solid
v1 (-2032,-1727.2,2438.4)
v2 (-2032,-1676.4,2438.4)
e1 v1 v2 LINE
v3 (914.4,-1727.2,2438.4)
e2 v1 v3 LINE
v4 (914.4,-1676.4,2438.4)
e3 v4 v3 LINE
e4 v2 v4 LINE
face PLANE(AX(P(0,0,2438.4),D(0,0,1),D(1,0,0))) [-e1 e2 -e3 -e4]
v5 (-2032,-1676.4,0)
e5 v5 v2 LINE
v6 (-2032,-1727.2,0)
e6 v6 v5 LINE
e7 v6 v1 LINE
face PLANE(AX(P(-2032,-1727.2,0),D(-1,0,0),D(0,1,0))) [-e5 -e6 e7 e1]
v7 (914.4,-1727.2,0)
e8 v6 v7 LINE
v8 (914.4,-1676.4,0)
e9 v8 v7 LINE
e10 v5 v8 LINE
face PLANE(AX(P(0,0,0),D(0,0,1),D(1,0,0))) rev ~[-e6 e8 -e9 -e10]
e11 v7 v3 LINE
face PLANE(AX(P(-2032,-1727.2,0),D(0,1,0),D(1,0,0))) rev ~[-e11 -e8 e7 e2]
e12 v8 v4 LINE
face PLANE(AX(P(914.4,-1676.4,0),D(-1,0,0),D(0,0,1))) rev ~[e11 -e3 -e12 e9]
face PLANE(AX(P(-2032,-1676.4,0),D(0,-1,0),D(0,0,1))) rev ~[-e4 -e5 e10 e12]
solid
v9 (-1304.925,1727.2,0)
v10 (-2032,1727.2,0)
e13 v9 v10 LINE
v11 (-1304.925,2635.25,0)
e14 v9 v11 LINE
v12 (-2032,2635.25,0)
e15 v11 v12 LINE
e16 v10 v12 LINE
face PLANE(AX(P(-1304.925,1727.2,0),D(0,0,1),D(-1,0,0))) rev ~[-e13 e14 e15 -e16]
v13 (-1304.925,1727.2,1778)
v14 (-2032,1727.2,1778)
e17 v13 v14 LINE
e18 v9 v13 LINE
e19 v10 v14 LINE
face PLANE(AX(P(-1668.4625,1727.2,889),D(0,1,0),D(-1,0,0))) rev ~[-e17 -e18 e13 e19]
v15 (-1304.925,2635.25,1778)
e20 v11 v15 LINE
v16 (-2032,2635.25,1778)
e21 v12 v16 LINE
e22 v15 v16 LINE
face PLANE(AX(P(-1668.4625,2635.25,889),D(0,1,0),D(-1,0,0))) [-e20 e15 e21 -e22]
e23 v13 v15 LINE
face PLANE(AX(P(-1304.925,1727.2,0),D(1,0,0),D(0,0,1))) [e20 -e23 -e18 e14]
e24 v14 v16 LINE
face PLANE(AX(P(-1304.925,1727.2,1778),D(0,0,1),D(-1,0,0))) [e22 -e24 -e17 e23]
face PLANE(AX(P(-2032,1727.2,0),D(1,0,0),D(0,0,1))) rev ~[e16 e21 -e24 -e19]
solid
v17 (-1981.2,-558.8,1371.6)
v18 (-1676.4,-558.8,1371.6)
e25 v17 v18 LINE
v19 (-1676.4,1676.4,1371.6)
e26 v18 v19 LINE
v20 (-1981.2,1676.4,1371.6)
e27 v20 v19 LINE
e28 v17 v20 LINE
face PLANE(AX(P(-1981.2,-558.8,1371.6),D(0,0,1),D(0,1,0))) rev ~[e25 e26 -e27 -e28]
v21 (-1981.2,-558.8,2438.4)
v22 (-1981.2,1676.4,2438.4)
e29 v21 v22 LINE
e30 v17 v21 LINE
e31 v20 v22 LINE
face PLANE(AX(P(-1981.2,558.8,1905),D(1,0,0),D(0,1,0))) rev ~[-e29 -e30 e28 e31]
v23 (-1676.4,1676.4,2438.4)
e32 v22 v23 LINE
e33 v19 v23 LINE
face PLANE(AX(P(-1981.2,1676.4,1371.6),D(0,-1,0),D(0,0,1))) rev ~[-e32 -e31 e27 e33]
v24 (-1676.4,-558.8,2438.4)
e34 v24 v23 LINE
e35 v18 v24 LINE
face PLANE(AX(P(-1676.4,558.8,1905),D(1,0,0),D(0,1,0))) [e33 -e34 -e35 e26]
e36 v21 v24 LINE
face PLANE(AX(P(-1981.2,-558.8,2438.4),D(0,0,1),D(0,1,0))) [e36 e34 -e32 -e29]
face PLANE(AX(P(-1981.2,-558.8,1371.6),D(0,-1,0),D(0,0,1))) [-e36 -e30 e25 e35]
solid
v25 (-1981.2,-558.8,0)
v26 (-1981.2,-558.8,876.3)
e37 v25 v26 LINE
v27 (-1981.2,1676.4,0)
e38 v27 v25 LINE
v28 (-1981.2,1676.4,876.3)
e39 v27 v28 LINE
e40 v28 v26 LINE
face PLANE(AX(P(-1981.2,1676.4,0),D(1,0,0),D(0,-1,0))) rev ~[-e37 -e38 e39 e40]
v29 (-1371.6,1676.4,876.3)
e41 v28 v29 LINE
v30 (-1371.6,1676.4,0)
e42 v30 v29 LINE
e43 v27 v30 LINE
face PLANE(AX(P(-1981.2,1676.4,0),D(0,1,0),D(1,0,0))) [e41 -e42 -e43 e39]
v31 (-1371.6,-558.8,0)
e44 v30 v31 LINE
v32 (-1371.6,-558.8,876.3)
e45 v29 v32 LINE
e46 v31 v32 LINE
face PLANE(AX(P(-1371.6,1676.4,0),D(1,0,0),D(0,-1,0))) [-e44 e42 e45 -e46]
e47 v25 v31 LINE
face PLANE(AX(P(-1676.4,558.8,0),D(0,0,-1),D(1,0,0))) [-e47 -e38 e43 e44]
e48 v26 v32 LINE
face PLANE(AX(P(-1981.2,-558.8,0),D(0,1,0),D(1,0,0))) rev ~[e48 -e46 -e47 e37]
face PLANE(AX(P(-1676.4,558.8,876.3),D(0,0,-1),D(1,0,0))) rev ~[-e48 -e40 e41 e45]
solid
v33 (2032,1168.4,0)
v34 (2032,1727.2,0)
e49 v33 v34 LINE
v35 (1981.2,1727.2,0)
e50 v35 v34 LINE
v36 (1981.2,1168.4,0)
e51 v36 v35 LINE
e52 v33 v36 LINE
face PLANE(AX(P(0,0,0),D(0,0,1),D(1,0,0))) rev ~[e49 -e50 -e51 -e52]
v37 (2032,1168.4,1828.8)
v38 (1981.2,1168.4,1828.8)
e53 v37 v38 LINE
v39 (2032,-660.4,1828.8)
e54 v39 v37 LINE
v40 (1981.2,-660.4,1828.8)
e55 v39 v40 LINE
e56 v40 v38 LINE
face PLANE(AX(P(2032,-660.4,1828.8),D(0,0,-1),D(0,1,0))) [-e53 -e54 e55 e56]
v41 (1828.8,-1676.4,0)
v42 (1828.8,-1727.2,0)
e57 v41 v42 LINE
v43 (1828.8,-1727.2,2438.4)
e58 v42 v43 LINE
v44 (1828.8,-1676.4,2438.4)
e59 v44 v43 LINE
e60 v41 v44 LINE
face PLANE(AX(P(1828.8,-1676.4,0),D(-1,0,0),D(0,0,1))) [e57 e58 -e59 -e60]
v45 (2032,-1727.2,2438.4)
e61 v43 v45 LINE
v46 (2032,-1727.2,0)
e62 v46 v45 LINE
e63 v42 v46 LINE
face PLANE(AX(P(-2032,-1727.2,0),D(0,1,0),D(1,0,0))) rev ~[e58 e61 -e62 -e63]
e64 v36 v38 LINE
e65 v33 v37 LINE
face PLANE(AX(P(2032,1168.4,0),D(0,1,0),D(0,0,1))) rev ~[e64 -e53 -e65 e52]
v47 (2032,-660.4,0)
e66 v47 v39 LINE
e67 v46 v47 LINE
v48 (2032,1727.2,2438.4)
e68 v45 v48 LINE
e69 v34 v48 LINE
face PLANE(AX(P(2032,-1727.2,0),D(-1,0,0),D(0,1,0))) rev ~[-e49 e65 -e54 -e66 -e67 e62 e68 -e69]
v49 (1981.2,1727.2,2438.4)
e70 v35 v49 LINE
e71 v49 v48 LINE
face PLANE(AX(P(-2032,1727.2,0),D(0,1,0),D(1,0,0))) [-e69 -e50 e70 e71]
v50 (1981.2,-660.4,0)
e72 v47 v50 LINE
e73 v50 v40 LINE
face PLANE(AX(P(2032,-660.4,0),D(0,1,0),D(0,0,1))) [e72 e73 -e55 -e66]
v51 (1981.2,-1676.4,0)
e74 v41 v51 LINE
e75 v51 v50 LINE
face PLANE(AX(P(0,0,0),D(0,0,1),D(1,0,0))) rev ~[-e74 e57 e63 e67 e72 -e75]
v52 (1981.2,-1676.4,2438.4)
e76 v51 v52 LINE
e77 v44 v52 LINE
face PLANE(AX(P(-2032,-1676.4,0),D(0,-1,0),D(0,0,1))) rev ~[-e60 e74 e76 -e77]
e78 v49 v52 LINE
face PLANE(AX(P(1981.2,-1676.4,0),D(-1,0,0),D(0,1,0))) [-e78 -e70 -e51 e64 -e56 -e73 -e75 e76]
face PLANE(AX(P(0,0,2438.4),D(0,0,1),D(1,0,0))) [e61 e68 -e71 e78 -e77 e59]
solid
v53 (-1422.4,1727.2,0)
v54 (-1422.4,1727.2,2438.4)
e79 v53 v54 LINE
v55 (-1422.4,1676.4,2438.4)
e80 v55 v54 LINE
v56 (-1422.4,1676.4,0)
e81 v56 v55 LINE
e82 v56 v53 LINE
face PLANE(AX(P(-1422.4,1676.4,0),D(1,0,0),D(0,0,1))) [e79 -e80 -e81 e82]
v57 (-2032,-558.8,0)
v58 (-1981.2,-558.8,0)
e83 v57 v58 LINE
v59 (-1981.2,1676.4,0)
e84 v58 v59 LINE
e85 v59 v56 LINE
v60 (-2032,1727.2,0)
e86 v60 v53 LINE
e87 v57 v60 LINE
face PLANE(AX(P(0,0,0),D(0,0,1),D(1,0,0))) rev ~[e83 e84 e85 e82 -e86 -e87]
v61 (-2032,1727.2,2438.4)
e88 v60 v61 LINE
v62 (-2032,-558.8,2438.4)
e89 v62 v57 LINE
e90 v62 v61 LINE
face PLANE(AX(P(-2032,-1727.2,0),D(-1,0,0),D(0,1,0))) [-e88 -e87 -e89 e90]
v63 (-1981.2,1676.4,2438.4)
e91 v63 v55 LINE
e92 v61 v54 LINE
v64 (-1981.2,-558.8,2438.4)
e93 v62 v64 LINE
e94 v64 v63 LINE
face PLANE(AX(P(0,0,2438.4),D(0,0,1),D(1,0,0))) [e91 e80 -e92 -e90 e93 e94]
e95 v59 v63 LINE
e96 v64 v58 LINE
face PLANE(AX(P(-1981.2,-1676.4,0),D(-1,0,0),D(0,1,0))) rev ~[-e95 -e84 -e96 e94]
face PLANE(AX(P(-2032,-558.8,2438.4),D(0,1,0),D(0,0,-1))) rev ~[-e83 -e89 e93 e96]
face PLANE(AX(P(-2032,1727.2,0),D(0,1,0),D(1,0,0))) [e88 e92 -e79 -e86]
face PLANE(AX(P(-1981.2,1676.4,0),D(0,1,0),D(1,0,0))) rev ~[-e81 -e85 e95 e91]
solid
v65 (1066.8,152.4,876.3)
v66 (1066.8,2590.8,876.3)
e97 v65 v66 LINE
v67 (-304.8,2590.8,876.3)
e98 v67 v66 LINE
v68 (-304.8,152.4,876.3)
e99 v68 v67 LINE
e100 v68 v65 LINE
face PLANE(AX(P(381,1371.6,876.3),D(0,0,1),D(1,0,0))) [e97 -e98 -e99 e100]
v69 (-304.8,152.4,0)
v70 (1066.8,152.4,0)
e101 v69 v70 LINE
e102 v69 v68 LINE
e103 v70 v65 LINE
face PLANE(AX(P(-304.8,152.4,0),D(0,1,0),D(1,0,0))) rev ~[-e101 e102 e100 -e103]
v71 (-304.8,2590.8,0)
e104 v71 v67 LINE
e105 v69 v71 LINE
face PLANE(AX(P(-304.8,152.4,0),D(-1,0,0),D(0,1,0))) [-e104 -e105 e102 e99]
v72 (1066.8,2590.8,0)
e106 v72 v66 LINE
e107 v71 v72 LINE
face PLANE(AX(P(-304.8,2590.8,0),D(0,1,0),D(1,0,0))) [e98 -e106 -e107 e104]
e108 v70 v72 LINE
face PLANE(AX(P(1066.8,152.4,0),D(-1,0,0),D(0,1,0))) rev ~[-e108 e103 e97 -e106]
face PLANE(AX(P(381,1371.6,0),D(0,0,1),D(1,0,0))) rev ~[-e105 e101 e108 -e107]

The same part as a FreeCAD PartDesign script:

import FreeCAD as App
import Part
import Sketcher
from FreeCAD import Vector
Q = App.Units.Quantity

doc = App.newDocument("Part")
body = doc.addObject("PartDesign::Body", "Body")
body.AllowCompound = True

sketch1 = body.newObject("Sketcher::SketchObject", "Sketch")
sketch1.AttachmentSupport = (doc.getObject("XY_Plane"), [""])
sketch1.MapMode = "FlatFace"
sketch1.addGeometry([
    Part.LineSegment(Vector(-2032, 1727, 0), Vector(-2032, -1727, 0)),
    Part.LineSegment(Vector(-2032, -1727, 0), Vector(2032, -1727, 0)),
    Part.LineSegment(Vector(2032, -1727, 0), Vector(2032, 1727, 0)),
    Part.LineSegment(Vector(2032, 1727, 0), Vector(-2032, 1727, 0)),
    Part.LineSegment(Vector(1981, -1676, 0), Vector(-1981, -1676, 0)),
    Part.LineSegment(Vector(-1981, -1676, 0), Vector(-1981, 1676, 0)),
    Part.LineSegment(Vector(-1981, 1676, 0), Vector(1981, 1676, 0)),
    Part.LineSegment(Vector(1981, 1676, 0), Vector(1981, -1676, 0)),
], False)
sketch1.addConstraint([
    Sketcher.Constraint("Coincident", 0, 2, 1, 1),
    Sketcher.Constraint("Coincident", 1, 2, 2, 1),
    Sketcher.Constraint("Coincident", 2, 2, 3, 1),
    Sketcher.Constraint("Coincident", 3, 2, 0, 1),
    Sketcher.Constraint("Coincident", 4, 2, 5, 1),
    Sketcher.Constraint("Coincident", 5, 2, 6, 1),
    Sketcher.Constraint("Coincident", 6, 2, 7, 1),
    Sketcher.Constraint("Coincident", 7, 2, 4, 1),
    Sketcher.Constraint("Vertical", 0),
    Sketcher.Constraint("Horizontal", 1),
    Sketcher.Constraint("Vertical", 2),
    Sketcher.Constraint("Horizontal", 3),
    Sketcher.Constraint("Horizontal", 4),
    Sketcher.Constraint("Vertical", 5),
    Sketcher.Constraint("Horizontal", 6),
    Sketcher.Constraint("Vertical", 7),
    Sketcher.Constraint("Symmetric", 0, 2, 2, 2, -1, 1),
    Sketcher.Constraint("Symmetric", 4, 2, 6, 2, -1, 1),
    Sketcher.Constraint("DistanceX", 1, 1, 1, 2, Q("160 in")),
    Sketcher.Constraint("DistanceX", 4, 2, 4, 1, Q("156 in")),
    Sketcher.Constraint("DistanceY", 0, 2, 0, 1, Q("136 in")),
    Sketcher.Constraint("DistanceY", 5, 1, 5, 2, Q("132 in")),
])
pad1 = body.newObject("PartDesign::Pad", "Pad")
pad1.Profile = sketch1
pad1.Length = Q("96 in")

sketch2 = body.newObject("Sketcher::SketchObject", "Sketch001")
sketch2.AttachmentSupport = (doc.getObject("YZ_Plane"), [""])
sketch2.MapMode = "FlatFace"
sketch2.AttachmentOffset = App.Placement(Vector(0, 0, -80 * 25.4), App.Rotation())
sketch2.addGeometry([
    Part.LineSegment(Vector(-559, 0, 0), Vector(-1676, 0, 0)),
    Part.LineSegment(Vector(-1676, 0, 0), Vector(-1676, 2438, 0)),
    Part.LineSegment(Vector(-1676, 2438, 0), Vector(-559, 2438, 0)),
    Part.LineSegment(Vector(-559, 2438, 0), Vector(-559, 0, 0)),
], False)
sketch2.addConstraint([
    Sketcher.Constraint("Coincident", 0, 2, 1, 1),
    Sketcher.Constraint("Coincident", 1, 2, 2, 1),
    Sketcher.Constraint("Coincident", 2, 2, 3, 1),
    Sketcher.Constraint("Coincident", 3, 2, 0, 1),
    Sketcher.Constraint("Horizontal", 0),
    Sketcher.Constraint("Vertical", 1),
    Sketcher.Constraint("Horizontal", 2),
    Sketcher.Constraint("Vertical", 3),
    Sketcher.Constraint("PointOnObject", 0, 2, -1),
    Sketcher.Constraint("DistanceX", 0, 2, 0, 1, Q("44 in")),
    Sketcher.Constraint("DistanceY", 1, 1, 1, 2, Q("96 in")),
    Sketcher.Constraint("DistanceX", 0, 2, -1, 1, Q("66 in")),
])
pocket1 = body.newObject("PartDesign::Pocket", "Pocket")
pocket1.Profile = sketch2
pocket1.Length = Q("2 in")
pocket1.Reversed = True

sketch3 = body.newObject("Sketcher::SketchObject", "Sketch002")
sketch3.AttachmentSupport = (doc.getObject("XZ_Plane"), [""])
sketch3.MapMode = "FlatFace"
sketch3.AttachmentOffset = App.Placement(Vector(0, 0, -68 * 25.4), App.Rotation())
sketch3.addGeometry([
    Part.LineSegment(Vector(1981, 2438, 0), Vector(1981, 0, 0)),
    Part.LineSegment(Vector(1981, 0, 0), Vector(914, 0, 0)),
    Part.LineSegment(Vector(914, 0, 0), Vector(914, 2438, 0)),
    Part.LineSegment(Vector(914, 2438, 0), Vector(1981, 2438, 0)),
], False)
sketch3.addConstraint([
    Sketcher.Constraint("Coincident", 0, 2, 1, 1),
    Sketcher.Constraint("Coincident", 1, 2, 2, 1),
    Sketcher.Constraint("Coincident", 2, 2, 3, 1),
    Sketcher.Constraint("Coincident", 3, 2, 0, 1),
    Sketcher.Constraint("Vertical", 0),
    Sketcher.Constraint("Horizontal", 1),
    Sketcher.Constraint("Vertical", 2),
    Sketcher.Constraint("Horizontal", 3),
    Sketcher.Constraint("PointOnObject", 0, 2, -1),
    Sketcher.Constraint("DistanceX", 1, 2, 1, 1, Q("42 in")),
    Sketcher.Constraint("DistanceY", 0, 2, 0, 1, Q("96 in")),
    Sketcher.Constraint("DistanceX", -1, 1, 0, 2, Q("78 in")),
])
pocket2 = body.newObject("PartDesign::Pocket", "Pocket001")
pocket2.Profile = sketch3
pocket2.Length = Q("2 in")
pocket2.Reversed = True

sketch4 = body.newObject("Sketcher::SketchObject", "Sketch003")
sketch4.AttachmentSupport = (doc.getObject("XZ_Plane"), [""])
sketch4.MapMode = "FlatFace"
sketch4.AttachmentOffset = App.Placement(Vector(0, 0, 66 * 25.4), App.Rotation())
sketch4.addGeometry([
    Part.LineSegment(Vector(1829, 2438, 0), Vector(1829, 0, 0)),
    Part.LineSegment(Vector(1829, 0, 0), Vector(914, 0, 0)),
    Part.LineSegment(Vector(914, 0, 0), Vector(914, 2438, 0)),
    Part.LineSegment(Vector(914, 2438, 0), Vector(1829, 2438, 0)),
], False)
sketch4.addConstraint([
    Sketcher.Constraint("Coincident", 0, 2, 1, 1),
    Sketcher.Constraint("Coincident", 1, 2, 2, 1),
    Sketcher.Constraint("Coincident", 2, 2, 3, 1),
    Sketcher.Constraint("Coincident", 3, 2, 0, 1),
    Sketcher.Constraint("Vertical", 0),
    Sketcher.Constraint("Horizontal", 1),
    Sketcher.Constraint("Vertical", 2),
    Sketcher.Constraint("Horizontal", 3),
    Sketcher.Constraint("PointOnObject", 0, 2, -1),
    Sketcher.Constraint("DistanceX", 1, 2, 1, 1, Q("36 in")),
    Sketcher.Constraint("DistanceY", 0, 2, 0, 1, Q("96 in")),
    Sketcher.Constraint("DistanceX", -1, 1, 0, 2, Q("72 in")),
])
pocket3 = body.newObject("PartDesign::Pocket", "Pocket002")
pocket3.Profile = sketch4
pocket3.Length = Q("2 in")
pocket3.Reversed = True

sketch5 = body.newObject("Sketcher::SketchObject", "Sketch004")
sketch5.AttachmentSupport = (doc.getObject("YZ_Plane"), [""])
sketch5.MapMode = "FlatFace"
sketch5.AttachmentOffset = App.Placement(Vector(0, 0, 80 * 25.4), App.Rotation())
sketch5.addGeometry([
    Part.LineSegment(Vector(-660, 1829, 0), Vector(-660, 0, 0)),
    Part.LineSegment(Vector(-660, 0, 0), Vector(1168, 0, 0)),
    Part.LineSegment(Vector(1168, 0, 0), Vector(1168, 1829, 0)),
    Part.LineSegment(Vector(1168, 1829, 0), Vector(-660, 1829, 0)),
], False)
sketch5.addConstraint([
    Sketcher.Constraint("Coincident", 0, 2, 1, 1),
    Sketcher.Constraint("Coincident", 1, 2, 2, 1),
    Sketcher.Constraint("Coincident", 2, 2, 3, 1),
    Sketcher.Constraint("Coincident", 3, 2, 0, 1),
    Sketcher.Constraint("Vertical", 0),
    Sketcher.Constraint("Horizontal", 1),
    Sketcher.Constraint("Vertical", 2),
    Sketcher.Constraint("Horizontal", 3),
    Sketcher.Constraint("PointOnObject", 0, 2, -1),
    Sketcher.Constraint("Equal", 3, 0),
    Sketcher.Constraint("DistanceX", 1, 1, 1, 2, Q("72 in")),
    Sketcher.Constraint("DistanceX", 0, 2, -1, 1, Q("26 in")),
])
pocket4 = body.newObject("PartDesign::Pocket", "Pocket003")
pocket4.Profile = sketch5
pocket4.Length = Q("2 in")

sketch6 = body.newObject("Sketcher::SketchObject", "Sketch005")
sketch6.AttachmentSupport = (doc.getObject("XZ_Plane"), [""])
sketch6.MapMode = "FlatFace"
sketch6.AttachmentOffset = App.Placement(Vector(0, 0, -66 * 25.4), App.Rotation())
sketch6.addGeometry([
    Part.LineSegment(Vector(-1422, 2438, 0), Vector(-1422, 0, 0)),
    Part.LineSegment(Vector(-1422, 0, 0), Vector(914, 0, 0)),
    Part.LineSegment(Vector(914, 0, 0), Vector(914, 2438, 0)),
    Part.LineSegment(Vector(914, 2438, 0), Vector(-1422, 2438, 0)),
], False)
sketch6.addConstraint([
    Sketcher.Constraint("Coincident", 0, 2, 1, 1),
    Sketcher.Constraint("Coincident", 1, 2, 2, 1),
    Sketcher.Constraint("Coincident", 2, 2, 3, 1),
    Sketcher.Constraint("Coincident", 3, 2, 0, 1),
    Sketcher.Constraint("Vertical", 0),
    Sketcher.Constraint("Horizontal", 1),
    Sketcher.Constraint("Vertical", 2),
    Sketcher.Constraint("Horizontal", 3),
    Sketcher.Constraint("PointOnObject", 0, 2, -1),
    Sketcher.Constraint("DistanceX", 1, 1, 1, 2, Q("92 in")),
    Sketcher.Constraint("DistanceY", 0, 2, 0, 1, Q("96 in")),
    Sketcher.Constraint("DistanceX", 0, 2, -1, 1, Q("56 in")),
])
pocket5 = body.newObject("PartDesign::Pocket", "Pocket004")
pocket5.Profile = sketch6
pocket5.Length = Q("2 in")
body2 = doc.addObject("PartDesign::Body", "Body001")

sketch7 = body2.newObject("Sketcher::SketchObject", "Sketch006")
sketch7.AttachmentSupport = (doc.getObject("XY_Plane001"), [""])
sketch7.MapMode = "FlatFace"
sketch7.addGeometry([
    Part.LineSegment(Vector(-1981, -559, 0), Vector(-1981, 1676, 0)),
    Part.LineSegment(Vector(-1981, 1676, 0), Vector(-1372, 1676, 0)),
    Part.LineSegment(Vector(-1372, 1676, 0), Vector(-1372, -559, 0)),
    Part.LineSegment(Vector(-1372, -559, 0), Vector(-1981, -559, 0)),
], False)
sketch7.addConstraint([
    Sketcher.Constraint("Coincident", 0, 2, 1, 1),
    Sketcher.Constraint("Coincident", 1, 2, 2, 1),
    Sketcher.Constraint("Coincident", 2, 2, 3, 1),
    Sketcher.Constraint("Coincident", 3, 2, 0, 1),
    Sketcher.Constraint("Vertical", 0),
    Sketcher.Constraint("Horizontal", 1),
    Sketcher.Constraint("Vertical", 2),
    Sketcher.Constraint("Horizontal", 3),
    Sketcher.Constraint("DistanceX", 1, 1, 1, 2, Q("24 in")),
    Sketcher.Constraint("DistanceY", 0, 1, 0, 2, Q("88 in")),
    Sketcher.Constraint("DistanceX", 0, 2, -1, 1, Q("78 in")),
    Sketcher.Constraint("DistanceY", -1, 1, 0, 2, Q("66 in")),
])
pad2 = body2.newObject("PartDesign::Pad", "Pad001")
pad2.Profile = sketch7
pad2.Length = Q("34.5 in")
body3 = doc.addObject("PartDesign::Body", "Body002")

sketch8 = body3.newObject("Sketcher::SketchObject", "Sketch007")
sketch8.AttachmentSupport = (doc.getObject("YZ_Plane002"), [""])
sketch8.MapMode = "FlatFace"
sketch8.AttachmentOffset = App.Placement(Vector(0, 0, -78 * 25.4), App.Rotation())
sketch8.addGeometry([
    Part.LineSegment(Vector(-559, 2438, 0), Vector(-559, 1372, 0)),
    Part.LineSegment(Vector(-559, 1372, 0), Vector(1676, 1372, 0)),
    Part.LineSegment(Vector(1676, 1372, 0), Vector(1676, 2438, 0)),
    Part.LineSegment(Vector(1676, 2438, 0), Vector(-559, 2438, 0)),
], False)
sketch8.addConstraint([
    Sketcher.Constraint("Coincident", 0, 2, 1, 1),
    Sketcher.Constraint("Coincident", 1, 2, 2, 1),
    Sketcher.Constraint("Coincident", 2, 2, 3, 1),
    Sketcher.Constraint("Coincident", 3, 2, 0, 1),
    Sketcher.Constraint("Vertical", 0),
    Sketcher.Constraint("Horizontal", 1),
    Sketcher.Constraint("Vertical", 2),
    Sketcher.Constraint("Horizontal", 3),
    Sketcher.Constraint("DistanceX", 1, 1, 1, 2, Q("88 in")),
    Sketcher.Constraint("DistanceY", 0, 2, 0, 1, Q("42 in")),
    Sketcher.Constraint("DistanceX", 0, 2, -1, 1, Q("22 in")),
    Sketcher.Constraint("DistanceY", -1, 1, 0, 2, Q("54 in")),
])
pad3 = body3.newObject("PartDesign::Pad", "Pad002")
pad3.Profile = sketch8
pad3.Length = Q("12 in")
body4 = doc.addObject("PartDesign::Body", "Body003")

sketch9 = body4.newObject("Sketcher::SketchObject", "Sketch008")
sketch9.AttachmentSupport = (doc.getObject("XY_Plane003"), [""])
sketch9.MapMode = "FlatFace"
sketch9.addGeometry([
    Part.LineSegment(Vector(-305, 2591, 0), Vector(-305, 152, 0)),
    Part.LineSegment(Vector(-305, 152, 0), Vector(1067, 152, 0)),
    Part.LineSegment(Vector(1067, 152, 0), Vector(1067, 2591, 0)),
    Part.LineSegment(Vector(1067, 2591, 0), Vector(-305, 2591, 0)),
], False)
sketch9.addConstraint([
    Sketcher.Constraint("Coincident", 0, 2, 1, 1),
    Sketcher.Constraint("Coincident", 1, 2, 2, 1),
    Sketcher.Constraint("Coincident", 2, 2, 3, 1),
    Sketcher.Constraint("Coincident", 3, 2, 0, 1),
    Sketcher.Constraint("Vertical", 0),
    Sketcher.Constraint("Horizontal", 1),
    Sketcher.Constraint("Vertical", 2),
    Sketcher.Constraint("Horizontal", 3),
    Sketcher.Constraint("DistanceX", 1, 1, 1, 2, Q("54 in")),
    Sketcher.Constraint("DistanceY", 0, 2, 0, 1, Q("96 in")),
    Sketcher.Constraint("DistanceX", 0, 2, -1, 1, Q("12 in")),
    Sketcher.Constraint("DistanceY", -1, 1, 0, 2, Q("6 in")),
])
pad4 = body4.newObject("PartDesign::Pad", "Pad003")
pad4.Profile = sketch9
pad4.Length = Q("34.5 in")
body5 = doc.addObject("PartDesign::Body", "Body004")

sketch10 = body5.newObject("Sketcher::SketchObject", "Sketch009")
sketch10.AttachmentSupport = (doc.getObject("XZ_Plane004"), [""])
sketch10.MapMode = "FlatFace"
sketch10.AttachmentOffset = App.Placement(Vector(0, 0, -68 * 25.4), App.Rotation())
sketch10.addGeometry([
    Part.LineSegment(Vector(-1305, 1778, 0), Vector(-1305, 0, 0)),
    Part.LineSegment(Vector(-1305, 0, 0), Vector(-2032, 0, 0)),
    Part.LineSegment(Vector(-2032, 0, 0), Vector(-2032, 1778, 0)),
    Part.LineSegment(Vector(-2032, 1778, 0), Vector(-1305, 1778, 0)),
], False)
sketch10.addConstraint([
    Sketcher.Constraint("Coincident", 0, 2, 1, 1),
    Sketcher.Constraint("Coincident", 1, 2, 2, 1),
    Sketcher.Constraint("Coincident", 2, 2, 3, 1),
    Sketcher.Constraint("Coincident", 3, 2, 0, 1),
    Sketcher.Constraint("Vertical", 0),
    Sketcher.Constraint("Horizontal", 1),
    Sketcher.Constraint("Vertical", 2),
    Sketcher.Constraint("Horizontal", 3),
    Sketcher.Constraint("PointOnObject", 0, 2, -1),
    Sketcher.Constraint("DistanceY", 0, 2, 0, 1, Q("70 in")),
    Sketcher.Constraint("DistanceX", 1, 2, -1, 1, Q("80 in")),
    Sketcher.Constraint("DistanceX", 1, 2, 1, 1, Q("28.625 in")),
])
pad5 = body5.newObject("PartDesign::Pad", "Pad004")
pad5.Profile = sketch10
pad5.Length = Q("35.75 in")
pad5.Reversed = True

doc.recompute()
